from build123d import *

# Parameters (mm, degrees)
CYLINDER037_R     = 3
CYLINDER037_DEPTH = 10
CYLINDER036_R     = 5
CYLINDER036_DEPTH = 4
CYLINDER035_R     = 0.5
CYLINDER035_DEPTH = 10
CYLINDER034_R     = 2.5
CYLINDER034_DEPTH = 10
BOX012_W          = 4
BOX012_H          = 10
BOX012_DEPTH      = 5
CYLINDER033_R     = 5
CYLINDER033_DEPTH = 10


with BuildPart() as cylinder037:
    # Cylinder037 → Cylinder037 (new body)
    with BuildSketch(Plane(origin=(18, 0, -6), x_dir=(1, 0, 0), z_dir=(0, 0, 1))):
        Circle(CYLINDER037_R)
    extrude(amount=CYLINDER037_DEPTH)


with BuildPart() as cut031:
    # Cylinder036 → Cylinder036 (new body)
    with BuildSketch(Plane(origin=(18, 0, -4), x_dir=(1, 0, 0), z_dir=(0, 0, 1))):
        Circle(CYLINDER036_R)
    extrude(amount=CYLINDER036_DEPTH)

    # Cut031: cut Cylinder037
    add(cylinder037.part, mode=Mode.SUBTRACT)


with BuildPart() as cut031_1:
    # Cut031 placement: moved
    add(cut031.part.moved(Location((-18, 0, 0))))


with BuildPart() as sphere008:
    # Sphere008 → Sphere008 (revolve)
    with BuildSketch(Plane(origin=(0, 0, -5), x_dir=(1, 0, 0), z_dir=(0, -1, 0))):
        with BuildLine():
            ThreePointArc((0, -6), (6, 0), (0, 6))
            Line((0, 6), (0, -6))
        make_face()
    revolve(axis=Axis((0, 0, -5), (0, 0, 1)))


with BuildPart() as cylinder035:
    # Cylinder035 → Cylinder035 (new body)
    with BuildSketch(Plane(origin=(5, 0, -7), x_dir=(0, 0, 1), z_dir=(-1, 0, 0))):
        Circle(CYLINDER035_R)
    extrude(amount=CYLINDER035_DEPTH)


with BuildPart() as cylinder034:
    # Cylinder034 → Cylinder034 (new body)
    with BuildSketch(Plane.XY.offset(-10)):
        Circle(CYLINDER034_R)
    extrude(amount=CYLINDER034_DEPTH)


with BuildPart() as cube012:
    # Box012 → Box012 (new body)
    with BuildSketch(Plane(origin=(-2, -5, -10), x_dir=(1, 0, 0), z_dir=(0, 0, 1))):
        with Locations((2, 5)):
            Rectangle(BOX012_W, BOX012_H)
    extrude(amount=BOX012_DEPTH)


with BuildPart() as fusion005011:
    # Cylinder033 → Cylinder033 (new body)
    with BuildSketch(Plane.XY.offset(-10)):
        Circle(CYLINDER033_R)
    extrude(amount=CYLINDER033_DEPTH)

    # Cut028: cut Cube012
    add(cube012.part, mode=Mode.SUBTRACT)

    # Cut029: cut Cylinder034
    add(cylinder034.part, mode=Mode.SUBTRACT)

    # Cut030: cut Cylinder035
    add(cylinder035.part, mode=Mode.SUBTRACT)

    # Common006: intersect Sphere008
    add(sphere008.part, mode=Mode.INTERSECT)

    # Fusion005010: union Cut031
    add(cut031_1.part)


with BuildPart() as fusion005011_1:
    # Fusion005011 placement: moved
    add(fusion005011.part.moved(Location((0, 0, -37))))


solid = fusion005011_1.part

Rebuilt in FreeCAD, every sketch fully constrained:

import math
import FreeCAD as App
import Part
import Sketcher
Q = App.Units.Quantity


def add_polygon(sketch, points):
    """Adds a closed chain of lines whose ends are joined by coincident constraints."""
    first, n = sketch.GeometryCount, len(points)
    for a, b in zip(points, points[1:] + points[:1]):
        sketch.addGeometry(Part.LineSegment(App.Vector(*a, 0), App.Vector(*b, 0)), False)
    for i in range(n):
        sketch.addConstraint(Sketcher.Constraint("Coincident", first + i, 2, first + (i + 1) % n, 1))

doc = App.newDocument("Part")
params = doc.addObject("Spreadsheet::Sheet", "Params")
for row, (alias, value) in enumerate([
    ("sketch1_diameter", "6 mm"),
    ("pad1_length", "10 mm"),
    ("sketch2_diameter", "10 mm"),
    ("pad2_length", "4 mm"),
    ("sketch3_radius", "6 mm"),
    ("revolution_angle", "360 deg"),
    ("sketch4_diameter", "1 mm"),
    ("pad3_length", "10 mm"),
    ("sketch5_diameter", "5 mm"),
    ("pad4_length", "10 mm"),
    ("sketch6_width", "4 mm"),
    ("sketch6_height", "10 mm"),
    ("pad5_length", "5 mm"),
    ("sketch7_diameter", "10 mm"),
    ("pad6_length", "10 mm"),
], start=1):
    params.set(f"A{row}", alias)
    params.set(f"B{row}", "=" + value)
    params.setAlias(f"B{row}", alias)

body = doc.addObject("PartDesign::Body", "Body")

# Sketch on XY plane
sketch1 = doc.addObject("Sketcher::SketchObject", "Sketch")
body.addObject(sketch1)
sketch1.AttachmentSupport = (doc.XY_Plane, [""])
sketch1.MapMode = "FlatFace"
sketch1.AttachmentOffset = App.Placement(App.Vector(0, 0, -6), App.Rotation())
sketch1.addGeometry(Part.Circle(App.Vector(18, 0, 0), App.Vector(0, 0, 1), 3), False)
sketch1.addConstraint(Sketcher.Constraint("PointOnObject", 0, 3, -1))
sketch1.addConstraint(Sketcher.Constraint("Diameter", 0, Q("6 mm")))
sketch1.addConstraint(Sketcher.Constraint("DistanceX", -1, 1, 0, 3, Q("18 mm")))
sketch1.setExpression("Constraints[1]", "Params.sketch1_diameter")
pad1 = doc.addObject("PartDesign::Pad", "Pad")
body.addObject(pad1)
pad1.Profile = sketch1
pad1.setExpression("Length", "Params.pad1_length")
body2 = doc.addObject("PartDesign::Body", "Body001")

# Sketch on XY plane
sketch2 = doc.addObject("Sketcher::SketchObject", "Sketch001")
body2.addObject(sketch2)
sketch2.AttachmentSupport = (doc.getObject("XY_Plane001"), [""])
sketch2.MapMode = "FlatFace"
sketch2.AttachmentOffset = App.Placement(App.Vector(0, 0, -4), App.Rotation())
sketch2.addGeometry(Part.Circle(App.Vector(18, 0, 0), App.Vector(0, 0, 1), 5), False)
sketch2.addConstraint(Sketcher.Constraint("PointOnObject", 0, 3, -1))
sketch2.addConstraint(Sketcher.Constraint("Diameter", 0, Q("10 mm")))
sketch2.addConstraint(Sketcher.Constraint("DistanceX", -1, 1, 0, 3, Q("18 mm")))
sketch2.setExpression("Constraints[1]", "Params.sketch2_diameter")
pad2 = doc.addObject("PartDesign::Pad", "Pad001")
body2.addObject(pad2)
pad2.Profile = sketch2
pad2.setExpression("Length", "Params.pad2_length")
doc.recompute()

boolean = doc.addObject("PartDesign::Boolean", "Boolean")
body2.addObject(boolean)
boolean.Type = "Cut"
boolean.addObjects([body])
body3 = doc.addObject("PartDesign::Body", "Body002")
doc.recompute()

body2.Placement = App.Placement(App.Vector(-18, 0, 0), App.Rotation(App.Vector(0, 0, 1), 0))
boolean2 = doc.addObject("PartDesign::Boolean", "Boolean001")
body3.addObject(boolean2)
boolean2.Type = "Fuse"
boolean2.addObjects([body2])
body4 = doc.addObject("PartDesign::Body", "Body003")

# Sketch on XZ plane
sketch3 = doc.addObject("Sketcher::SketchObject", "Sketch002")
body4.addObject(sketch3)
sketch3.AttachmentSupport = (doc.getObject("XZ_Plane003"), [""])
sketch3.MapMode = "FlatFace"
sketch3.addGeometry(Part.ArcOfCircle(Part.Circle(App.Vector(0, -5, 0), App.Vector(0, 0, 1), 6), math.radians(-90), math.radians(90)), False)
sketch3.addGeometry(Part.LineSegment(App.Vector(0, 1, 0), App.Vector(0, -11, 0)), False)
sketch3.addConstraint(Sketcher.Constraint("Coincident", 0, 1, 1, 2))
sketch3.addConstraint(Sketcher.Constraint("Coincident", 1, 1, 0, 2))
sketch3.addConstraint(Sketcher.Constraint("Vertical", 1))
sketch3.addConstraint(Sketcher.Constraint("PointOnObject", 0, 3, -2))
sketch3.addConstraint(Sketcher.Constraint("PointOnObject", 0, 1, -2))
sketch3.addConstraint(Sketcher.Constraint("Radius", 0, Q("6 mm")))
sketch3.addConstraint(Sketcher.Constraint("DistanceY", 0, 3, -1, 1, Q("5 mm")))
sketch3.setExpression("Constraints[5]", "Params.sketch3_radius")
revolution = doc.addObject("PartDesign::Revolution", "Revolution")
body4.addObject(revolution)
revolution.Profile = sketch3
revolution.ReferenceAxis = (sketch3, ["V_Axis"])
revolution.setExpression("Angle", "Params.revolution_angle")
body5 = doc.addObject("PartDesign::Body", "Body004")

# Sketch on YZ plane
sketch4 = doc.addObject("Sketcher::SketchObject", "Sketch003")
body5.addObject(sketch4)
sketch4.AttachmentSupport = (doc.getObject("YZ_Plane004"), [""])
sketch4.MapMode = "FlatFace"
sketch4.AttachmentOffset = App.Placement(App.Vector(0, 0, 5), App.Rotation())
sketch4.addGeometry(Part.Circle(App.Vector(0, -7, 0), App.Vector(0, 0, 1), 0.5), False)
sketch4.addConstraint(Sketcher.Constraint("PointOnObject", 0, 3, -2))
sketch4.addConstraint(Sketcher.Constraint("Diameter", 0, Q("1 mm")))
sketch4.addConstraint(Sketcher.Constraint("DistanceY", 0, 3, -1, 1, Q("7 mm")))
sketch4.setExpression("Constraints[1]", "Params.sketch4_diameter")
pad3 = doc.addObject("PartDesign::Pad", "Pad002")
body5.addObject(pad3)
pad3.Profile = sketch4
pad3.setExpression("Length", "Params.pad3_length")
pad3.Reversed = True
body6 = doc.addObject("PartDesign::Body", "Body005")

# Sketch on XY plane
sketch5 = doc.addObject("Sketcher::SketchObject", "Sketch004")
body6.addObject(sketch5)
sketch5.AttachmentSupport = (doc.getObject("XY_Plane005"), [""])
sketch5.MapMode = "FlatFace"
sketch5.AttachmentOffset = App.Placement(App.Vector(0, 0, -10), App.Rotation())
sketch5.addGeometry(Part.Circle(App.Vector(0, 0, 0), App.Vector(0, 0, 1), 2.5), False)
sketch5.addConstraint(Sketcher.Constraint("Coincident", 0, 3, -1, 1))
sketch5.addConstraint(Sketcher.Constraint("Diameter", 0, Q("5 mm")))
sketch5.setExpression("Constraints[1]", "Params.sketch5_diameter")
pad4 = doc.addObject("PartDesign::Pad", "Pad003")
body6.addObject(pad4)
pad4.Profile = sketch5
pad4.setExpression("Length", "Params.pad4_length")
body7 = doc.addObject("PartDesign::Body", "Body006")

# Sketch on XY plane
sketch6 = doc.addObject("Sketcher::SketchObject", "Sketch005")
body7.addObject(sketch6)
sketch6.AttachmentSupport = (doc.getObject("XY_Plane006"), [""])
sketch6.MapMode = "FlatFace"
sketch6.AttachmentOffset = App.Placement(App.Vector(0, 0, -10), App.Rotation())
add_polygon(sketch6, [(-2, 5), (-2, -5), (2, -5), (2, 5)])  # lines 0-3
sketch6.addConstraint(Sketcher.Constraint("Vertical", 0))
sketch6.addConstraint(Sketcher.Constraint("Horizontal", 1))
sketch6.addConstraint(Sketcher.Constraint("Vertical", 2))
sketch6.addConstraint(Sketcher.Constraint("Horizontal", 3))
sketch6.addConstraint(Sketcher.Constraint("Symmetric", 0, 2, 2, 2, -1, 1))
sketch6.addConstraint(Sketcher.Constraint("DistanceX", 1, 1, 1, 2, Q("4 mm")))
sketch6.addConstraint(Sketcher.Constraint("DistanceY", 0, 2, 0, 1, Q("10 mm")))
sketch6.setExpression("Constraints[9]", "Params.sketch6_width")
sketch6.setExpression("Constraints[10]", "Params.sketch6_height")
pad5 = doc.addObject("PartDesign::Pad", "Pad004")
body7.addObject(pad5)
pad5.Profile = sketch6
pad5.setExpression("Length", "Params.pad5_length")
body8 = doc.addObject("PartDesign::Body", "Body007")

# Sketch on XY plane
sketch7 = doc.addObject("Sketcher::SketchObject", "Sketch006")
body8.addObject(sketch7)
sketch7.AttachmentSupport = (doc.getObject("XY_Plane007"), [""])
sketch7.MapMode = "FlatFace"
sketch7.AttachmentOffset = App.Placement(App.Vector(0, 0, -10), App.Rotation())
sketch7.addGeometry(Part.Circle(App.Vector(0, 0, 0), App.Vector(0, 0, 1), 5), False)
sketch7.addConstraint(Sketcher.Constraint("Coincident", 0, 3, -1, 1))
sketch7.addConstraint(Sketcher.Constraint("Diameter", 0, Q("10 mm")))
sketch7.setExpression("Constraints[1]", "Params.sketch7_diameter")
pad6 = doc.addObject("PartDesign::Pad", "Pad005")
body8.addObject(pad6)
pad6.Profile = sketch7
pad6.setExpression("Length", "Params.pad6_length")
doc.recompute()

boolean3 = doc.addObject("PartDesign::Boolean", "Boolean002")
body8.addObject(boolean3)
boolean3.Type = "Cut"
boolean3.addObjects([body7])
doc.recompute()

boolean4 = doc.addObject("PartDesign::Boolean", "Boolean003")
body8.addObject(boolean4)
boolean4.Type = "Cut"
boolean4.addObjects([body6])
doc.recompute()

boolean5 = doc.addObject("PartDesign::Boolean", "Boolean004")
body8.addObject(boolean5)
boolean5.Type = "Cut"
boolean5.addObjects([body5])
doc.recompute()

boolean6 = doc.addObject("PartDesign::Boolean", "Boolean005")
body8.addObject(boolean6)
boolean6.Type = "Common"
boolean6.addObjects([body4])
doc.recompute()

boolean7 = doc.addObject("PartDesign::Boolean", "Boolean006")
body8.addObject(boolean7)
boolean7.Type = "Fuse"
boolean7.addObjects([body3])
body9 = doc.addObject("PartDesign::Body", "Body008")
doc.recompute()

body8.Placement = App.Placement(App.Vector(0, 0, -37), App.Rotation(App.Vector(0, 0, 1), 0))
boolean8 = doc.addObject("PartDesign::Boolean", "Boolean007")
body9.addObject(boolean8)
boolean8.Type = "Fuse"
boolean8.addObjects([body8])

doc.recompute()
